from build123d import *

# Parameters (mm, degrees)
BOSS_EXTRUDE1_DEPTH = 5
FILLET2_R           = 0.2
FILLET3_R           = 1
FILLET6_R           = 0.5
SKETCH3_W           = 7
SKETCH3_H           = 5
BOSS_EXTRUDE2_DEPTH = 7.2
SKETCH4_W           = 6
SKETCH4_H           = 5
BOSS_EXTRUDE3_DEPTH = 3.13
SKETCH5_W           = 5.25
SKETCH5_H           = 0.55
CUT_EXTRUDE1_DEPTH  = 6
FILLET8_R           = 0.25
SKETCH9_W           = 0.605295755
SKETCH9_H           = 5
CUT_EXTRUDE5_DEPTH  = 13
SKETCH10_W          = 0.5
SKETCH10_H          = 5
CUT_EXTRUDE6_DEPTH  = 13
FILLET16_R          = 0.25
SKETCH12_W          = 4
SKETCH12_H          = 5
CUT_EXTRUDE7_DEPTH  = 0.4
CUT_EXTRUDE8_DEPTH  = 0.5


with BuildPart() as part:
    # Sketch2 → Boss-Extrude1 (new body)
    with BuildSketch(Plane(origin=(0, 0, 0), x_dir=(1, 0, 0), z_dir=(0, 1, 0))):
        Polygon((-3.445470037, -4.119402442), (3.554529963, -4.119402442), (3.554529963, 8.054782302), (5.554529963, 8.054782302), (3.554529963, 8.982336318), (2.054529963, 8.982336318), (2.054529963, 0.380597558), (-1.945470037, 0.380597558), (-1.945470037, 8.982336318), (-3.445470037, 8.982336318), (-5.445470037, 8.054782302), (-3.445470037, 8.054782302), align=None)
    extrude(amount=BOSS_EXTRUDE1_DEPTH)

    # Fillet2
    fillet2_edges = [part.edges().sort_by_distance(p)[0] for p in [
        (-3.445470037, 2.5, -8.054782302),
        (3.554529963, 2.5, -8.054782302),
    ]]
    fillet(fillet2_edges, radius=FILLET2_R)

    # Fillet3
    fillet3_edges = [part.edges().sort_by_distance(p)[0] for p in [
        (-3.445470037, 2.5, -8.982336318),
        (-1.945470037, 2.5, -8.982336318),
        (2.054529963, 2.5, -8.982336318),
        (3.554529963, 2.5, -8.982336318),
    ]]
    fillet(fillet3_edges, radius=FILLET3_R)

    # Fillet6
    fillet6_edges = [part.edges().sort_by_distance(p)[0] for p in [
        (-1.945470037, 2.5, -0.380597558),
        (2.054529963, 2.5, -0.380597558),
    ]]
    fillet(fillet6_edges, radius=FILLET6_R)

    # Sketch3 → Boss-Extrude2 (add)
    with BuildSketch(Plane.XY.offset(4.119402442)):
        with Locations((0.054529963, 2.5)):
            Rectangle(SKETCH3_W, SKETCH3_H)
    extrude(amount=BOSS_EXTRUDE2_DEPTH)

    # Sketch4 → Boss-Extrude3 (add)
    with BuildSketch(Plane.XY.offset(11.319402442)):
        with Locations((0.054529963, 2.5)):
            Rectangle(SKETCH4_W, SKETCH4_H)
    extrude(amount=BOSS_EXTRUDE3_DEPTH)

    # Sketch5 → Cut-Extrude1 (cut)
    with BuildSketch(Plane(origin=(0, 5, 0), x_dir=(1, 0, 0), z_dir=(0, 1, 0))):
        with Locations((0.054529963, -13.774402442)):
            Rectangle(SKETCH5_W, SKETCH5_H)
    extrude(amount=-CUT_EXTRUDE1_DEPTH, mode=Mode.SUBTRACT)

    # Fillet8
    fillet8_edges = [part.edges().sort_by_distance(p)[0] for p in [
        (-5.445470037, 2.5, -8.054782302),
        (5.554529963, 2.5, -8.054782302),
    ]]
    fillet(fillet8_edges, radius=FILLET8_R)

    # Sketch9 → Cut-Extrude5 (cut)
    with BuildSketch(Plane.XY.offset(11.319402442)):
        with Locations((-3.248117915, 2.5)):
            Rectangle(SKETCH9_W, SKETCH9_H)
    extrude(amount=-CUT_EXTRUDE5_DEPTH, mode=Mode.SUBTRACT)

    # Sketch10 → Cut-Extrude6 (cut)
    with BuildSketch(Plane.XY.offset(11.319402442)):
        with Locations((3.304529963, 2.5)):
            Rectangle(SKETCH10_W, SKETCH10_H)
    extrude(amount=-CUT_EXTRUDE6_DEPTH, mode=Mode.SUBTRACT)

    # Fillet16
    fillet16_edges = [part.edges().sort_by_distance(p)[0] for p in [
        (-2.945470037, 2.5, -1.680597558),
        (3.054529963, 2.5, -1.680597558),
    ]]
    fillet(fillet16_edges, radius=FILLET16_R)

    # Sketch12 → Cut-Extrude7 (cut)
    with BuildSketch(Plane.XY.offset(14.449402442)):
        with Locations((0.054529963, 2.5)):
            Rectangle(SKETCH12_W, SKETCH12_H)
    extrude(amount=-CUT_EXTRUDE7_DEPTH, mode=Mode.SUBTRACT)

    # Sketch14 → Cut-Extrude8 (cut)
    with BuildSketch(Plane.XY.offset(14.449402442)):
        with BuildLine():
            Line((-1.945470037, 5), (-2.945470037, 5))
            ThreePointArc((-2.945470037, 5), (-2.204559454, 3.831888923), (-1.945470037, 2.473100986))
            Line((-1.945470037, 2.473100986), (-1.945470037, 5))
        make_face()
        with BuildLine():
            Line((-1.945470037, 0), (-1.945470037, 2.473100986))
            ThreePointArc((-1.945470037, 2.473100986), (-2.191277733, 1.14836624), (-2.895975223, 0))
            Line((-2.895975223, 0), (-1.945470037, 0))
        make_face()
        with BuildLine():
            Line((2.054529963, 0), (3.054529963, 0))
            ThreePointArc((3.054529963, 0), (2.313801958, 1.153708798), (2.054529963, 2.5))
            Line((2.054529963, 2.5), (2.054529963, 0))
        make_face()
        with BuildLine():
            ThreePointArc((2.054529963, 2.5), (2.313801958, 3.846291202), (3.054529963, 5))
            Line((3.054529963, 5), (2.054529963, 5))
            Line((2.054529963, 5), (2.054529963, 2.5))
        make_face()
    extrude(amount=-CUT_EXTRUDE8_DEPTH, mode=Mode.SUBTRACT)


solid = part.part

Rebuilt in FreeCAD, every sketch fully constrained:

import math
import FreeCAD as App
import Part
import Sketcher
Q = App.Units.Quantity


def edges_at(feature, points):
    """Names of the edges that pass closest to the given points."""
    edges = feature.Shape.Edges
    near = lambda p: min(range(len(edges)), key=lambda i: edges[i].distToShape(Part.Vertex(*p))[0])
    return sorted({f"Edge{near(p) + 1}" for p in points})

doc = App.newDocument("Part")
body = doc.addObject("PartDesign::Body", "Body")

sketch1 = body.newObject("Sketcher::SketchObject", "Sketch")
sketch1.AttachmentSupport = (doc.getObject("XZ_Plane"), [""])
sketch1.MapMode = "FlatFace"
sketch1.addGeometry(Part.LineSegment(App.Vector(-3.4, 4.1, 0), App.Vector(3.6, 4.1, 0)), False)
sketch1.addGeometry(Part.LineSegment(App.Vector(3.6, 4.1, 0), App.Vector(3.6, -8.1, 0)), False)
sketch1.addGeometry(Part.LineSegment(App.Vector(3.6, -8.1, 0), App.Vector(5.6, -8.1, 0)), False)
sketch1.addGeometry(Part.LineSegment(App.Vector(5.6, -8.1, 0), App.Vector(3.6, -9, 0)), False)
sketch1.addGeometry(Part.LineSegment(App.Vector(3.6, -9, 0), App.Vector(2.1, -9, 0)), False)
sketch1.addGeometry(Part.LineSegment(App.Vector(2.1, -9, 0), App.Vector(2.1, -0.4, 0)), False)
sketch1.addGeometry(Part.LineSegment(App.Vector(2.1, -0.4, 0), App.Vector(-1.9, -0.4, 0)), False)
sketch1.addGeometry(Part.LineSegment(App.Vector(-1.9, -0.4, 0), App.Vector(-1.9, -9, 0)), False)
sketch1.addGeometry(Part.LineSegment(App.Vector(-1.9, -9, 0), App.Vector(-3.4, -9, 0)), False)
sketch1.addGeometry(Part.LineSegment(App.Vector(-3.4, -9, 0), App.Vector(-5.4, -8.1, 0)), False)
sketch1.addGeometry(Part.LineSegment(App.Vector(-5.4, -8.1, 0), App.Vector(-3.4, -8.1, 0)), False)
sketch1.addGeometry(Part.LineSegment(App.Vector(-3.4, -8.1, 0), App.Vector(-3.4, 4.1, 0)), False)
sketch1.addConstraint(Sketcher.Constraint("Coincident", 0, 2, 1, 1))
sketch1.addConstraint(Sketcher.Constraint("Coincident", 1, 2, 2, 1))
sketch1.addConstraint(Sketcher.Constraint("Coincident", 2, 2, 3, 1))
sketch1.addConstraint(Sketcher.Constraint("Coincident", 3, 2, 4, 1))
sketch1.addConstraint(Sketcher.Constraint("Coincident", 4, 2, 5, 1))
sketch1.addConstraint(Sketcher.Constraint("Coincident", 5, 2, 6, 1))
sketch1.addConstraint(Sketcher.Constraint("Coincident", 6, 2, 7, 1))
sketch1.addConstraint(Sketcher.Constraint("Coincident", 7, 2, 8, 1))
sketch1.addConstraint(Sketcher.Constraint("Coincident", 8, 2, 9, 1))
sketch1.addConstraint(Sketcher.Constraint("Coincident", 9, 2, 10, 1))
sketch1.addConstraint(Sketcher.Constraint("Coincident", 10, 2, 11, 1))
sketch1.addConstraint(Sketcher.Constraint("Coincident", 11, 2, 0, 1))
sketch1.addConstraint(Sketcher.Constraint("Horizontal", 0))
sketch1.addConstraint(Sketcher.Constraint("Vertical", 1))
sketch1.addConstraint(Sketcher.Constraint("Horizontal", 2))
sketch1.addConstraint(Sketcher.Constraint("Horizontal", 4))
sketch1.addConstraint(Sketcher.Constraint("Vertical", 5))
sketch1.addConstraint(Sketcher.Constraint("Horizontal", 6))
sketch1.addConstraint(Sketcher.Constraint("Vertical", 7))
sketch1.addConstraint(Sketcher.Constraint("Horizontal", 8))
sketch1.addConstraint(Sketcher.Constraint("Horizontal", 10))
sketch1.addConstraint(Sketcher.Constraint("Vertical", 11))
sketch1.addConstraint(Sketcher.Constraint("Horizontal", 4, 2, 7, 2))
sketch1.addConstraint(Sketcher.Constraint("Horizontal", 2, 2, 9, 2))
sketch1.addConstraint(Sketcher.Constraint("Vertical", 1, 2, 3, 2))
sketch1.addConstraint(Sketcher.Constraint("Vertical", 8, 2, 10, 2))
sketch1.addConstraint(Sketcher.Constraint("Equal", 4, 8))
sketch1.addConstraint(Sketcher.Constraint("Equal", 2, 10))
sketch1.addConstraint(Sketcher.Constraint("DistanceX", 0, 1, 0, 2, Q("7 mm")))
sketch1.addConstraint(Sketcher.Constraint("DistanceX", 2, 1, 2, 2, Q("2 mm")))
sketch1.addConstraint(Sketcher.Constraint("DistanceX", 6, 2, 6, 1, Q("4 mm")))
sketch1.addConstraint(Sketcher.Constraint("DistanceY", 5, 2, 0, 2, Q("4.5 mm")))
sketch1.addConstraint(Sketcher.Constraint("DistanceY", 5, 1, 5, 2, Q("8.601739 mm")))
sketch1.addConstraint(Sketcher.Constraint("Distance", 3, Q("2.204622 mm")))
sketch1.addConstraint(Sketcher.Constraint("DistanceX", -1, 1, 0, 2, Q("3.55453 mm")))
sketch1.addConstraint(Sketcher.Constraint("DistanceY", -1, 1, 0, 2, Q("4.119402 mm")))
pad1 = body.newObject("PartDesign::Pad", "Pad")
pad1.Profile = sketch1
pad1.Length = 5
pad1.Reversed = True
doc.recompute()

fillet = body.newObject("PartDesign::Fillet", "Fillet")
fillet.Base = (pad1, edges_at(pad1, [(-3.445, 2.5, -8.055), (3.555, 2.5, -8.055)]))
fillet.Radius = 0.2
doc.recompute()

fillet2 = body.newObject("PartDesign::Fillet", "Fillet001")
fillet2.Base = (fillet, edges_at(fillet, [
    (-3.445, 2.5, -8.982),
    (-1.945, 2.5, -8.982),
    (2.055, 2.5, -8.982),
    (3.555, 2.5, -8.982),
]))
fillet2.Radius = 1
doc.recompute()

fillet3 = body.newObject("PartDesign::Fillet", "Fillet002")
fillet3.Base = (fillet2, edges_at(fillet2, [(-1.945, 2.5, -0.381), (2.055, 2.5, -0.381)]))
fillet3.Radius = 0.5

sketch2 = body.newObject("Sketcher::SketchObject", "Sketch001")
sketch2.AttachmentSupport = (doc.getObject("XY_Plane"), [""])
sketch2.MapMode = "FlatFace"
sketch2.AttachmentOffset = App.Placement(App.Vector(0, 0, 4.119402), App.Rotation())
sketch2.addGeometry(Part.LineSegment(App.Vector(-3, 5, 0), App.Vector(-3, 0, 0)), False)
sketch2.addGeometry(Part.LineSegment(App.Vector(-3, 0, 0), App.Vector(4, 0, 0)), False)
sketch2.addGeometry(Part.LineSegment(App.Vector(4, 0, 0), App.Vector(4, 5, 0)), False)
sketch2.addGeometry(Part.LineSegment(App.Vector(4, 5, 0), App.Vector(-3, 5, 0)), False)
sketch2.addConstraint(Sketcher.Constraint("Coincident", 0, 2, 1, 1))
sketch2.addConstraint(Sketcher.Constraint("Coincident", 1, 2, 2, 1))
sketch2.addConstraint(Sketcher.Constraint("Coincident", 2, 2, 3, 1))
sketch2.addConstraint(Sketcher.Constraint("Coincident", 3, 2, 0, 1))
sketch2.addConstraint(Sketcher.Constraint("Vertical", 0))
sketch2.addConstraint(Sketcher.Constraint("Horizontal", 1))
sketch2.addConstraint(Sketcher.Constraint("Vertical", 2))
sketch2.addConstraint(Sketcher.Constraint("Horizontal", 3))
sketch2.addConstraint(Sketcher.Constraint("PointOnObject", 0, 2, -1))
sketch2.addConstraint(Sketcher.Constraint("DistanceX", 1, 1, 1, 2, Q("7 mm")))
sketch2.addConstraint(Sketcher.Constraint("DistanceY", 0, 2, 0, 1, Q("5 mm")))
sketch2.addConstraint(Sketcher.Constraint("DistanceX", 0, 2, -1, 1, Q("3.44547 mm")))
pad2 = body.newObject("PartDesign::Pad", "Pad001")
pad2.Profile = sketch2
pad2.Length = 7.2

sketch3 = body.newObject("Sketcher::SketchObject", "Sketch002")
sketch3.AttachmentSupport = (doc.getObject("XY_Plane"), [""])
sketch3.MapMode = "FlatFace"
sketch3.AttachmentOffset = App.Placement(App.Vector(0, 0, 11.319402), App.Rotation())
sketch3.addGeometry(Part.LineSegment(App.Vector(-3, 5, 0), App.Vector(-3, 0, 0)), False)
sketch3.addGeometry(Part.LineSegment(App.Vector(-3, 0, 0), App.Vector(3, 0, 0)), False)
sketch3.addGeometry(Part.LineSegment(App.Vector(3, 0, 0), App.Vector(3, 5, 0)), False)
sketch3.addGeometry(Part.LineSegment(App.Vector(3, 5, 0), App.Vector(-3, 5, 0)), False)
sketch3.addConstraint(Sketcher.Constraint("Coincident", 0, 2, 1, 1))
sketch3.addConstraint(Sketcher.Constraint("Coincident", 1, 2, 2, 1))
sketch3.addConstraint(Sketcher.Constraint("Coincident", 2, 2, 3, 1))
sketch3.addConstraint(Sketcher.Constraint("Coincident", 3, 2, 0, 1))
sketch3.addConstraint(Sketcher.Constraint("Vertical", 0))
sketch3.addConstraint(Sketcher.Constraint("Horizontal", 1))
sketch3.addConstraint(Sketcher.Constraint("Vertical", 2))
sketch3.addConstraint(Sketcher.Constraint("Horizontal", 3))
sketch3.addConstraint(Sketcher.Constraint("PointOnObject", 0, 2, -1))
sketch3.addConstraint(Sketcher.Constraint("DistanceX", 1, 1, 1, 2, Q("6 mm")))
sketch3.addConstraint(Sketcher.Constraint("DistanceY", 0, 2, 0, 1, Q("5 mm")))
sketch3.addConstraint(Sketcher.Constraint("DistanceX", 0, 2, -1, 1, Q("2.94547 mm")))
pad3 = body.newObject("PartDesign::Pad", "Pad002")
pad3.Profile = sketch3
pad3.Length = 3.13

sketch4 = body.newObject("Sketcher::SketchObject", "Sketch003")
sketch4.AttachmentSupport = (doc.getObject("XZ_Plane"), [""])
sketch4.MapMode = "FlatFace"
sketch4.AttachmentOffset = App.Placement(App.Vector(0, 0, -5), App.Rotation())
sketch4.addGeometry(Part.LineSegment(App.Vector(-2.6, 13.5, 0), App.Vector(-2.6, 14, 0)), False)
sketch4.addGeometry(Part.LineSegment(App.Vector(-2.6, 14, 0), App.Vector(2.7, 14, 0)), False)
sketch4.addGeometry(Part.LineSegment(App.Vector(2.7, 14, 0), App.Vector(2.7, 13.5, 0)), False)
sketch4.addGeometry(Part.LineSegment(App.Vector(2.7, 13.5, 0), App.Vector(-2.6, 13.5, 0)), False)
sketch4.addConstraint(Sketcher.Constraint("Coincident", 0, 2, 1, 1))
sketch4.addConstraint(Sketcher.Constraint("Coincident", 1, 2, 2, 1))
sketch4.addConstraint(Sketcher.Constraint("Coincident", 2, 2, 3, 1))
sketch4.addConstraint(Sketcher.Constraint("Coincident", 3, 2, 0, 1))
sketch4.addConstraint(Sketcher.Constraint("Vertical", 0))
sketch4.addConstraint(Sketcher.Constraint("Horizontal", 1))
sketch4.addConstraint(Sketcher.Constraint("Vertical", 2))
sketch4.addConstraint(Sketcher.Constraint("Horizontal", 3))
sketch4.addConstraint(Sketcher.Constraint("DistanceX", 1, 1, 1, 2, Q("5.25 mm")))
sketch4.addConstraint(Sketcher.Constraint("DistanceY", 0, 1, 0, 2, Q("0.55 mm")))
sketch4.addConstraint(Sketcher.Constraint("DistanceX", 0, 2, -1, 1, Q("2.57047 mm")))
sketch4.addConstraint(Sketcher.Constraint("DistanceY", -1, 1, 0, 2, Q("14.049402 mm")))
pocket1 = body.newObject("PartDesign::Pocket", "Pocket")
pocket1.Profile = sketch4
pocket1.Length = 6
pocket1.Reversed = True
doc.recompute()

fillet4 = body.newObject("PartDesign::Fillet", "Fillet003")
fillet4.Base = (pocket1, edges_at(pocket1, [(-5.445, 2.5, -8.055), (5.555, 2.5, -8.055)]))
fillet4.Radius = 0.25

sketch5 = body.newObject("Sketcher::SketchObject", "Sketch004")
sketch5.AttachmentSupport = (doc.getObject("XY_Plane"), [""])
sketch5.MapMode = "FlatFace"
sketch5.AttachmentOffset = App.Placement(App.Vector(0, 0, 11.319402), App.Rotation())
sketch5.addGeometry(Part.LineSegment(App.Vector(-3.6, 5, 0), App.Vector(-3.6, 0, 0)), False)
sketch5.addGeometry(Part.LineSegment(App.Vector(-3.6, 0, 0), App.Vector(-2.9, 0, 0)), False)
sketch5.addGeometry(Part.LineSegment(App.Vector(-2.9, 0, 0), App.Vector(-2.9, 5, 0)), False)
sketch5.addGeometry(Part.LineSegment(App.Vector(-2.9, 5, 0), App.Vector(-3.6, 5, 0)), False)
sketch5.addConstraint(Sketcher.Constraint("Coincident", 0, 2, 1, 1))
sketch5.addConstraint(Sketcher.Constraint("Coincident", 1, 2, 2, 1))
sketch5.addConstraint(Sketcher.Constraint("Coincident", 2, 2, 3, 1))
sketch5.addConstraint(Sketcher.Constraint("Coincident", 3, 2, 0, 1))
sketch5.addConstraint(Sketcher.Constraint("Vertical", 0))
sketch5.addConstraint(Sketcher.Constraint("Horizontal", 1))
sketch5.addConstraint(Sketcher.Constraint("Vertical", 2))
sketch5.addConstraint(Sketcher.Constraint("Horizontal", 3))
sketch5.addConstraint(Sketcher.Constraint("PointOnObject", 0, 2, -1))
sketch5.addConstraint(Sketcher.Constraint("DistanceY", 0, 2, 0, 1, Q("5 mm")))
sketch5.addConstraint(Sketcher.Constraint("DistanceX", 1, 1, 1, 2, Q("0.605296 mm")))
sketch5.addConstraint(Sketcher.Constraint("DistanceX", 1, 2, -1, 1, Q("2.94547 mm")))
pocket2 = body.newObject("PartDesign::Pocket", "Pocket001")
pocket2.Profile = sketch5
pocket2.Length = 13

sketch6 = body.newObject("Sketcher::SketchObject", "Sketch005")
sketch6.AttachmentSupport = (doc.getObject("XY_Plane"), [""])
sketch6.MapMode = "FlatFace"
sketch6.AttachmentOffset = App.Placement(App.Vector(0, 0, 11.319402), App.Rotation())
sketch6.addGeometry(Part.LineSegment(App.Vector(3.1, 5, 0), App.Vector(3.1, 0, 0)), False)
sketch6.addGeometry(Part.LineSegment(App.Vector(3.1, 0, 0), App.Vector(3.6, 0, 0)), False)
sketch6.addGeometry(Part.LineSegment(App.Vector(3.6, 0, 0), App.Vector(3.6, 5, 0)), False)
sketch6.addGeometry(Part.LineSegment(App.Vector(3.6, 5, 0), App.Vector(3.1, 5, 0)), False)
sketch6.addConstraint(Sketcher.Constraint("Coincident", 0, 2, 1, 1))
sketch6.addConstraint(Sketcher.Constraint("Coincident", 1, 2, 2, 1))
sketch6.addConstraint(Sketcher.Constraint("Coincident", 2, 2, 3, 1))
sketch6.addConstraint(Sketcher.Constraint("Coincident", 3, 2, 0, 1))
sketch6.addConstraint(Sketcher.Constraint("Vertical", 0))
sketch6.addConstraint(Sketcher.Constraint("Horizontal", 1))
sketch6.addConstraint(Sketcher.Constraint("Vertical", 2))
sketch6.addConstraint(Sketcher.Constraint("Horizontal", 3))
sketch6.addConstraint(Sketcher.Constraint("PointOnObject", 0, 2, -1))
sketch6.addConstraint(Sketcher.Constraint("DistanceY", 0, 2, 0, 1, Q("5 mm")))
sketch6.addConstraint(Sketcher.Constraint("DistanceX", 1, 1, 1, 2, Q("0.5 mm")))
sketch6.addConstraint(Sketcher.Constraint("DistanceX", -1, 1, 0, 2, Q("3.05453 mm")))
pocket3 = body.newObject("PartDesign::Pocket", "Pocket002")
pocket3.Profile = sketch6
pocket3.Length = 13
doc.recompute()

fillet5 = body.newObject("PartDesign::Fillet", "Fillet004")
fillet5.Base = (pocket3, edges_at(pocket3, [(-2.945, 2.5, -1.681), (3.055, 2.5, -1.681)]))
fillet5.Radius = 0.25

sketch7 = body.newObject("Sketcher::SketchObject", "Sketch006")
sketch7.AttachmentSupport = (doc.getObject("XY_Plane"), [""])
sketch7.MapMode = "FlatFace"
sketch7.AttachmentOffset = App.Placement(App.Vector(0, 0, 14.449402), App.Rotation())
sketch7.addGeometry(Part.LineSegment(App.Vector(-1.9, 5, 0), App.Vector(-1.9, 0, 0)), False)
sketch7.addGeometry(Part.LineSegment(App.Vector(-1.9, 0, 0), App.Vector(2.1, 0, 0)), False)
sketch7.addGeometry(Part.LineSegment(App.Vector(2.1, 0, 0), App.Vector(2.1, 5, 0)), False)
sketch7.addGeometry(Part.LineSegment(App.Vector(2.1, 5, 0), App.Vector(-1.9, 5, 0)), False)
sketch7.addConstraint(Sketcher.Constraint("Coincident", 0, 2, 1, 1))
sketch7.addConstraint(Sketcher.Constraint("Coincident", 1, 2, 2, 1))
sketch7.addConstraint(Sketcher.Constraint("Coincident", 2, 2, 3, 1))
sketch7.addConstraint(Sketcher.Constraint("Coincident", 3, 2, 0, 1))
sketch7.addConstraint(Sketcher.Constraint("Vertical", 0))
sketch7.addConstraint(Sketcher.Constraint("Horizontal", 1))
sketch7.addConstraint(Sketcher.Constraint("Vertical", 2))
sketch7.addConstraint(Sketcher.Constraint("Horizontal", 3))
sketch7.addConstraint(Sketcher.Constraint("PointOnObject", 0, 2, -1))
sketch7.addConstraint(Sketcher.Constraint("DistanceX", 1, 1, 1, 2, Q("4 mm")))
sketch7.addConstraint(Sketcher.Constraint("DistanceY", 0, 2, 0, 1, Q("5 mm")))
sketch7.addConstraint(Sketcher.Constraint("DistanceX", 0, 2, -1, 1, Q("1.94547 mm")))
pocket4 = body.newObject("PartDesign::Pocket", "Pocket003")
pocket4.Profile = sketch7
pocket4.Length = 0.4

sketch8 = body.newObject("Sketcher::SketchObject", "Sketch007")
sketch8.AttachmentSupport = (doc.getObject("XY_Plane"), [""])
sketch8.MapMode = "FlatFace"
sketch8.AttachmentOffset = App.Placement(App.Vector(0, 0, 14.449402), App.Rotation())
sketch8.addGeometry(Part.LineSegment(App.Vector(-1.9, 5, 0), App.Vector(-2.9, 5, 0)), False)
sketch8.addGeometry(Part.ArcOfCircle(Part.Circle(App.Vector(-5.6, 2.5, 0), App.Vector(0, 0, 1), 3.7), math.radians(0), math.radians(43)), False)
sketch8.addGeometry(Part.LineSegment(App.Vector(-1.9, 2.5, 0), App.Vector(-1.9, 5, 0)), False)
sketch8.addGeometry(Part.LineSegment(App.Vector(-1.9, 0, 0), App.Vector(-1.9, 2.5, 0)), False)
sketch8.addGeometry(Part.ArcOfCircle(Part.Circle(App.Vector(-5.6, 2.5, 0), App.Vector(0, 0, 1), 3.7), math.radians(-42), math.radians(0)), False)
sketch8.addGeometry(Part.LineSegment(App.Vector(-2.9, 0, 0), App.Vector(-1.9, 0, 0)), False)
sketch8.addGeometry(Part.LineSegment(App.Vector(2.1, 0, 0), App.Vector(3.1, 0, 0)), False)
sketch8.addGeometry(Part.ArcOfCircle(Part.Circle(App.Vector(5.7, 2.5, 0), App.Vector(0, 0, 1), 3.6), math.radians(180), math.radians(224)), False)
sketch8.addGeometry(Part.LineSegment(App.Vector(2.1, 2.5, 0), App.Vector(2.1, 0, 0)), False)
sketch8.addGeometry(Part.ArcOfCircle(Part.Circle(App.Vector(5.7, 2.5, 0), App.Vector(0, 0, 1), 3.6), math.radians(136), math.radians(180)), False)
sketch8.addGeometry(Part.LineSegment(App.Vector(3.1, 5, 0), App.Vector(2.1, 5, 0)), False)
sketch8.addGeometry(Part.LineSegment(App.Vector(2.1, 5, 0), App.Vector(2.1, 2.5, 0)), False)
sketch8.addConstraint(Sketcher.Constraint("Coincident", 0, 2, 1, 2))
sketch8.addConstraint(Sketcher.Constraint("Tangent", 1, 1, 2, 1))
sketch8.addConstraint(Sketcher.Constraint("Coincident", 2, 2, 0, 1))
sketch8.addConstraint(Sketcher.Constraint("Tangent", 3, 2, 4, 2))
sketch8.addConstraint(Sketcher.Constraint("Coincident", 4, 1, 5, 1))
sketch8.addConstraint(Sketcher.Constraint("Coincident", 5, 2, 3, 1))
sketch8.addConstraint(Sketcher.Constraint("Coincident", 6, 2, 7, 2))
sketch8.addConstraint(Sketcher.Constraint("Tangent", 7, 1, 8, 1))
sketch8.addConstraint(Sketcher.Constraint("Coincident", 8, 2, 6, 1))
sketch8.addConstraint(Sketcher.Constraint("Coincident", 9, 1, 10, 1))
sketch8.addConstraint(Sketcher.Constraint("Coincident", 10, 2, 11, 1))
sketch8.addConstraint(Sketcher.Constraint("Tangent", 11, 2, 9, 2))
sketch8.addConstraint(Sketcher.Constraint("Horizontal", 0))
sketch8.addConstraint(Sketcher.Constraint("Vertical", 2))
sketch8.addConstraint(Sketcher.Constraint("Vertical", 3))
sketch8.addConstraint(Sketcher.Constraint("Horizontal", 5))
sketch8.addConstraint(Sketcher.Constraint("Horizontal", 6))
sketch8.addConstraint(Sketcher.Constraint("Vertical", 8))
sketch8.addConstraint(Sketcher.Constraint("Horizontal", 10))
sketch8.addConstraint(Sketcher.Constraint("Vertical", 11))
sketch8.addConstraint(Sketcher.Constraint("Coincident", 4, 3, 1, 3))
sketch8.addConstraint(Sketcher.Constraint("Coincident", 9, 3, 7, 3))
sketch8.addConstraint(Sketcher.Constraint("Equal", 1, 4))
sketch8.addConstraint(Sketcher.Constraint("Equal", 7, 9))
sketch8.addConstraint(Sketcher.Constraint("PointOnObject", 4, 1, -1))
sketch8.addConstraint(Sketcher.Constraint("PointOnObject", 6, 2, -1))
sketch8.addConstraint(Sketcher.Constraint("Horizontal", 2, 2, 9, 1))
sketch8.addConstraint(Sketcher.Constraint("Vertical", 6, 2, 9, 1))
sketch8.addConstraint(Sketcher.Constraint("Equal", 0, 6))
sketch8.addConstraint(Sketcher.Constraint("DistanceX", 0, 2, 0, 1, Q("1 mm")))
sketch8.addConstraint(Sketcher.Constraint("DistanceY", 8, 2, 8, 1, Q("2.5 mm")))
sketch8.addConstraint(Sketcher.Constraint("DistanceX", 5, 2, 6, 2, Q("5 mm")))
sketch8.addConstraint(Sketcher.Constraint("Radius", 1, Q("3.692609 mm")))
sketch8.addConstraint(Sketcher.Constraint("DistanceX", 1, 3, -1, 1, Q("5.638079 mm")))
pocket5 = body.newObject("PartDesign::Pocket", "Pocket004")
pocket5.Profile = sketch8
pocket5.Length = 0.5

doc.recompute()
